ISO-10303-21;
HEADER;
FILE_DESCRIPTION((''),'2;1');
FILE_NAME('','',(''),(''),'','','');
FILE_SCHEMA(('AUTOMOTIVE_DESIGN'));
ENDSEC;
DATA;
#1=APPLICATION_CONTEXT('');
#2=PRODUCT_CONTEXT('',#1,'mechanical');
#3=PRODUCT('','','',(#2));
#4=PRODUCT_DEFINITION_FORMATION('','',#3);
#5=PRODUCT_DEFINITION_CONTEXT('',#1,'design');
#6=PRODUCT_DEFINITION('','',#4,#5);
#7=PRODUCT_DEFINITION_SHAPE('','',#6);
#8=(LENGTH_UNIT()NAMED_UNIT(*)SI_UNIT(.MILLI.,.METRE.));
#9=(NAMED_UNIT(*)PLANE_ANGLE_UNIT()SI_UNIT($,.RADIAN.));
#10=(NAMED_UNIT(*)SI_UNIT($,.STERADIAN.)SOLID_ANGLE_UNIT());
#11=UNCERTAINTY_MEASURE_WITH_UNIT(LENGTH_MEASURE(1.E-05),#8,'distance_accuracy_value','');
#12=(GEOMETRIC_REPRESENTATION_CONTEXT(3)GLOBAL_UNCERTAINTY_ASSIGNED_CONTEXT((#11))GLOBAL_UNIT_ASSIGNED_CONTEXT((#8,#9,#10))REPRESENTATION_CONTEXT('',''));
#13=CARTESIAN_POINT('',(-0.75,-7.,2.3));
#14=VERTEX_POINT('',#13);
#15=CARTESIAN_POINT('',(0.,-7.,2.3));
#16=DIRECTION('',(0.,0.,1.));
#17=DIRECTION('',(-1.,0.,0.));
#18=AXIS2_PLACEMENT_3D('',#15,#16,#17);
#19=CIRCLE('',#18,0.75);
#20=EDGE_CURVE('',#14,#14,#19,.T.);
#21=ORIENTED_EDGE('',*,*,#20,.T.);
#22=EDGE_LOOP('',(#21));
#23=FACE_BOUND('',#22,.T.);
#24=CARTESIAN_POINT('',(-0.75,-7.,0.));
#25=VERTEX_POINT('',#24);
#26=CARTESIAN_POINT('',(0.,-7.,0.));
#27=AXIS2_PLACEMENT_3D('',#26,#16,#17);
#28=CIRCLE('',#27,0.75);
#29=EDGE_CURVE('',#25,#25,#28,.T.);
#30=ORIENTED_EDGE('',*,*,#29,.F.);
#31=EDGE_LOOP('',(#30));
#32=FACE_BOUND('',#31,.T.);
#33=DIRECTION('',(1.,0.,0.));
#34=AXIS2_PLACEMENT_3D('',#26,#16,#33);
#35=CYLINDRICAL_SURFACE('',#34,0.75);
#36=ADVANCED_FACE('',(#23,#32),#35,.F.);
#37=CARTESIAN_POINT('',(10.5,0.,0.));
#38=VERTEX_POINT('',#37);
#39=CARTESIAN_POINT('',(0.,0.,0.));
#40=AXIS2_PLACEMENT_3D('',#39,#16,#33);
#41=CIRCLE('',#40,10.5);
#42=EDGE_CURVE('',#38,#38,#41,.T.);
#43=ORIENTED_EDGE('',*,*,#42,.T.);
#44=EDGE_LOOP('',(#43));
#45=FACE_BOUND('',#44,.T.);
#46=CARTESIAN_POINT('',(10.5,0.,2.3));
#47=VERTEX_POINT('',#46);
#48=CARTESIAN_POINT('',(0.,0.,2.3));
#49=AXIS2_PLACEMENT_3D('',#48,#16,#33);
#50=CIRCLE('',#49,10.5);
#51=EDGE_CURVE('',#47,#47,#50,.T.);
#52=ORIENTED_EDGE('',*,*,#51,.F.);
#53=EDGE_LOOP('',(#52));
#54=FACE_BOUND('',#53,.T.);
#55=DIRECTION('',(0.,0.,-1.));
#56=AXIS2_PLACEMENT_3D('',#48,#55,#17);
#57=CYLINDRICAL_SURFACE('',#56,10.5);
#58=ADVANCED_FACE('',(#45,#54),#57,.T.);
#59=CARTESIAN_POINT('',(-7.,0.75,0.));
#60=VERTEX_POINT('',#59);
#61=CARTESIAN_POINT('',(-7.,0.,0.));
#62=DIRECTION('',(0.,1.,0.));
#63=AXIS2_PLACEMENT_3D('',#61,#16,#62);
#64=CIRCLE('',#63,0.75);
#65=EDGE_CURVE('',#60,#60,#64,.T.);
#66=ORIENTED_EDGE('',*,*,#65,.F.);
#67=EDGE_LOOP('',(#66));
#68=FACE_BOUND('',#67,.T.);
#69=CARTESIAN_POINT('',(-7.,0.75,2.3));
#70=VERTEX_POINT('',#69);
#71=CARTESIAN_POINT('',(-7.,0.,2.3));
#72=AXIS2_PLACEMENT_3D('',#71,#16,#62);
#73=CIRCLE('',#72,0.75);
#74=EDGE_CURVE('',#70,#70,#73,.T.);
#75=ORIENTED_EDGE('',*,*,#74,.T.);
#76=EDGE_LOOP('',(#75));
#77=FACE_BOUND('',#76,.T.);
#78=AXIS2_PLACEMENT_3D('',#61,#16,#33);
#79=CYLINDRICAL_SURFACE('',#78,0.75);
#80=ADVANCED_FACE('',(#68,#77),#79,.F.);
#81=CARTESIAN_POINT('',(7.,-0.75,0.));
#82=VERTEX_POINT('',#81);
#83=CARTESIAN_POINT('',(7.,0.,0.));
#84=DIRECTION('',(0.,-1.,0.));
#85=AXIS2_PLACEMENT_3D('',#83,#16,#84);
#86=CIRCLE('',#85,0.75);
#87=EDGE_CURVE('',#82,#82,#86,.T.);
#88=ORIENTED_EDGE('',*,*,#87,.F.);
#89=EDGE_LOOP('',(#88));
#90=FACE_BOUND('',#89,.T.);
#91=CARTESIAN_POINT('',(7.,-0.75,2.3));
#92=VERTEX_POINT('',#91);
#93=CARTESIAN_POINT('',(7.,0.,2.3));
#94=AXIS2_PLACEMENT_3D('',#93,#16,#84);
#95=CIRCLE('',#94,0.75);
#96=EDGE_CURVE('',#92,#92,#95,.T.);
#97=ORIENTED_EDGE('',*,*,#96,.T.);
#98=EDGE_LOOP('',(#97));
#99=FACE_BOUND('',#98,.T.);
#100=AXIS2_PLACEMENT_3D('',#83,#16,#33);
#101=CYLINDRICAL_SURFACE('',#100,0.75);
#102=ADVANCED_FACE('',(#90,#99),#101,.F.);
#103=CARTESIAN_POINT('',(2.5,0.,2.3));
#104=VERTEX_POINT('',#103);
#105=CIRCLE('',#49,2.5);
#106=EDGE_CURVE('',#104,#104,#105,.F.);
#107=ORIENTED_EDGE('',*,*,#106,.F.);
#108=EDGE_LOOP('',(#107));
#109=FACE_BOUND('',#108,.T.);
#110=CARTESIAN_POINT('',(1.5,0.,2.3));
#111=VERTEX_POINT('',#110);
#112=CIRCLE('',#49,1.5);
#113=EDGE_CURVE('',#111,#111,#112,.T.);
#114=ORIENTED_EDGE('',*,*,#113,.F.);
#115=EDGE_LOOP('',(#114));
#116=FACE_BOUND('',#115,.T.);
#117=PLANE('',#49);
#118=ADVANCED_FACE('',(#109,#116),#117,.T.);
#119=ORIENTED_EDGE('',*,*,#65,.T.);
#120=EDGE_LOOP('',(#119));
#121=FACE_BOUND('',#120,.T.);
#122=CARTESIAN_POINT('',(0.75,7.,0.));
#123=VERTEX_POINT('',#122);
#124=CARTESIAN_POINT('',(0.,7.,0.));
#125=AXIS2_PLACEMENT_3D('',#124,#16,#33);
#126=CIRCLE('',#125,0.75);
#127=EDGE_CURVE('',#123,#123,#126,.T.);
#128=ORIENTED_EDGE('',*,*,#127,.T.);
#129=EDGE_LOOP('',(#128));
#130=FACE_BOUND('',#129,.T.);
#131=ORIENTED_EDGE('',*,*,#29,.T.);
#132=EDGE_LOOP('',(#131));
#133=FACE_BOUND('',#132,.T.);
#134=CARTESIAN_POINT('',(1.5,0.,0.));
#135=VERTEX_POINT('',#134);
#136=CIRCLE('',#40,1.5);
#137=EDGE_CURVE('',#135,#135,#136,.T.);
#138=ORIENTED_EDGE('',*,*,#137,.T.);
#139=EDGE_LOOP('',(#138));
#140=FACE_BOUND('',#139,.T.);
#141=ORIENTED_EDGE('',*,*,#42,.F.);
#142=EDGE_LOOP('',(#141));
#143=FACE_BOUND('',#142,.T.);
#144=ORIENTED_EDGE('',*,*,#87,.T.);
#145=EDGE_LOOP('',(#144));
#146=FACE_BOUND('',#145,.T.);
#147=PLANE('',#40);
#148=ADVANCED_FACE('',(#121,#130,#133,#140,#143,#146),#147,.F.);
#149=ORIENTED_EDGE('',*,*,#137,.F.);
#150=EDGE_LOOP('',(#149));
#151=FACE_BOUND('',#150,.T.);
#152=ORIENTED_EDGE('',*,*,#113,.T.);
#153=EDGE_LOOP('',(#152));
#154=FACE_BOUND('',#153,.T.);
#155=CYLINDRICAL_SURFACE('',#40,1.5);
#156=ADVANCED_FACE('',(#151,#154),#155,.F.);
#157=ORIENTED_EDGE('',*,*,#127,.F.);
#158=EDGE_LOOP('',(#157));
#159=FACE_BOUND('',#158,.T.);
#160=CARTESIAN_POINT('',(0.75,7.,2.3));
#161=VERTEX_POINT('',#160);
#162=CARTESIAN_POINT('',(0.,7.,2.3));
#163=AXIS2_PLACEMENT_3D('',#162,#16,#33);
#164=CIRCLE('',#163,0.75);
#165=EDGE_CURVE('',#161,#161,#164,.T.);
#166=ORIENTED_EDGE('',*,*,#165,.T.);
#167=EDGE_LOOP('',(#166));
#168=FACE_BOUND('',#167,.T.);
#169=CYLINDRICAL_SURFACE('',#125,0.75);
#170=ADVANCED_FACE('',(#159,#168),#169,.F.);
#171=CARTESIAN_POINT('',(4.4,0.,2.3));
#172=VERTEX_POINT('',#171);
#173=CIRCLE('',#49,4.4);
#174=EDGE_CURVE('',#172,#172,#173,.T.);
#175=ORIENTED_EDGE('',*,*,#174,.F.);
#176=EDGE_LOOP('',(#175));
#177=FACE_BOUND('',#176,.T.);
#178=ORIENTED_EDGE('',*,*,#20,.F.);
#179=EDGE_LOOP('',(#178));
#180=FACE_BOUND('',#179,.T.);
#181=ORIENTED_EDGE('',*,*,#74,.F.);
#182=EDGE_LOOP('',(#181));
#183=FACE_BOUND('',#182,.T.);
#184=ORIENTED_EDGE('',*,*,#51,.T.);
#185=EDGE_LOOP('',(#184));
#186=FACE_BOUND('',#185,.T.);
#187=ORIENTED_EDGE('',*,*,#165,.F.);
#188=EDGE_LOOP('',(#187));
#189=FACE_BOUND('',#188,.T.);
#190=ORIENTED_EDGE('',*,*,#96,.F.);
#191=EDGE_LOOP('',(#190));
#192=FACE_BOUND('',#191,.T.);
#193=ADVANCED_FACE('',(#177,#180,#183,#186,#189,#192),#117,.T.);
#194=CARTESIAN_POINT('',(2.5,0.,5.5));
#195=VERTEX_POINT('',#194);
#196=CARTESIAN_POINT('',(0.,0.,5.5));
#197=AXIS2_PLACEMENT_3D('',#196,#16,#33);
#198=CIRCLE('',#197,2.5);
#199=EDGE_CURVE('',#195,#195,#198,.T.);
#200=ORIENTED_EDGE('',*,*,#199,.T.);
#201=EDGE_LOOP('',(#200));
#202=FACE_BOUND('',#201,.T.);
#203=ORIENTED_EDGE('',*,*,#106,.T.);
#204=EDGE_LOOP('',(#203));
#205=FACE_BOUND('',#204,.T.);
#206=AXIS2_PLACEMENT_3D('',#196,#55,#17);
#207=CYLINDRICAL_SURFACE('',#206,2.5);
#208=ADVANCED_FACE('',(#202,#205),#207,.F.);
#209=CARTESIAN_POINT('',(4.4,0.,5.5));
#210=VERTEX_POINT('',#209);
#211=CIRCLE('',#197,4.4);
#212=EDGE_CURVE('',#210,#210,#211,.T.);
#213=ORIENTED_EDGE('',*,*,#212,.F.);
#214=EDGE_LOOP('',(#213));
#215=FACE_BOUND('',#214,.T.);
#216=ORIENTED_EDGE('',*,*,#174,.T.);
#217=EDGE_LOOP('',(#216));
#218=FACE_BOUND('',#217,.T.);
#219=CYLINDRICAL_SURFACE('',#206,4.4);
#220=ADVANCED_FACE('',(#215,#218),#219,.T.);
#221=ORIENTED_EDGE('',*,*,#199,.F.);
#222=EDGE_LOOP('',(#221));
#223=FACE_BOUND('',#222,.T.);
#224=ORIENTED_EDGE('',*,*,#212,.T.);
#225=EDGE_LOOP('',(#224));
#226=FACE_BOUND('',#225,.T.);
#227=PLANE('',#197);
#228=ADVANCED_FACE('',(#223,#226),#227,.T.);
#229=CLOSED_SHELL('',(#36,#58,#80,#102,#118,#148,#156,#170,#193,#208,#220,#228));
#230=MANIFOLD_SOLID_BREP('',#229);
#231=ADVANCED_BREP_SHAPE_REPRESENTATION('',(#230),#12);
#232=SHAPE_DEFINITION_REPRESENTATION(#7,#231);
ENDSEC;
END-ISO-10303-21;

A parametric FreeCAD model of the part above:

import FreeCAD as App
import Part
import Sketcher

V = App.Vector

doc = App.newDocument("Part")
body = doc.addObject("PartDesign::Body", "Body")

# Sketch on XY plane
sketch1 = body.newObject("Sketcher::SketchObject", "Sketch")
sketch1.AttachmentSupport = (doc.getObject("XY_Plane"), [""])
sketch1.MapMode = "FlatFace"
sketch1.addGeometry(Part.Circle(V(0, 0, 0), V(0, 0, 1), 10.5), False)
sketch1.addConstraint([
    Sketcher.Constraint("Coincident", 0, 3, -1, 1),
    Sketcher.Constraint("Diameter", 0, 21.0),
])
pad1 = body.newObject("PartDesign::Pad", "Pad")
pad1.Profile = sketch1
pad1.Length = 2.3

# Sketch on XY plane
sketch2 = body.newObject("Sketcher::SketchObject", "Sketch001")
sketch2.AttachmentSupport = (doc.getObject("XY_Plane"), [""])
sketch2.MapMode = "FlatFace"
sketch2.AttachmentOffset = App.Placement(V(0, 0, 2.3), App.Rotation())
sketch2.addGeometry(Part.Circle(V(0, 7, 0), V(0, 0, 1), 0.75), False)
sketch2.addConstraint([
    Sketcher.Constraint("PointOnObject", 0, 3, -2),
    Sketcher.Constraint("Diameter", 0, 1.5),
    Sketcher.Constraint("DistanceY", -1, 1, 0, 3, 7.0),
])
pocket1 = body.newObject("PartDesign::Pocket", "Pocket")
pocket1.Profile = sketch2
pocket1.Type = "ThroughAll"

# Sketch on XY plane
sketch3 = body.newObject("Sketcher::SketchObject", "Sketch002")
sketch3.AttachmentSupport = (doc.getObject("XY_Plane"), [""])
sketch3.MapMode = "FlatFace"
sketch3.AttachmentOffset = App.Placement(V(0, 0, 2.3), App.Rotation())
sketch3.addGeometry(Part.Circle(V(0, 0, 0), V(0, 0, 1), 1.5), False)
sketch3.addConstraint([
    Sketcher.Constraint("Coincident", 0, 3, -1, 1),
    Sketcher.Constraint("Diameter", 0, 3.0),
])
pocket2 = body.newObject("PartDesign::Pocket", "Pocket001")
pocket2.Profile = sketch3
pocket2.Length = 2.3
doc.recompute()

polarpattern = body.newObject("PartDesign::PolarPattern", "PolarPattern")
polarpattern.Originals = [pocket1]
polarpattern.Axis = (doc.getObject("Z_Axis"), [""])
polarpattern.Angle = 360
polarpattern.Occurrences = 4
body.Tip = polarpattern

# Sketch on XY plane
sketch4 = body.newObject("Sketcher::SketchObject", "Sketch003")
sketch4.AttachmentSupport = (doc.getObject("XY_Plane"), [""])
sketch4.MapMode = "FlatFace"
sketch4.AttachmentOffset = App.Placement(V(0, 0, 2.3), App.Rotation())
sketch4.addGeometry([
    Part.Circle(V(0, 0, 0), V(0, 0, 1), 4.4),
    Part.Circle(V(0, 0, 0), V(0, 0, 1), 2.5),
], False)
sketch4.addConstraint([
    Sketcher.Constraint("Coincident", 0, 3, -1, 1),
    Sketcher.Constraint("Coincident", 1, 3, -1, 1),
    Sketcher.Constraint("Diameter", 1, 5.0),
    Sketcher.Constraint("Diameter", 0, 8.8),
])
pad2 = body.newObject("PartDesign::Pad", "Pad001")
pad2.Profile = sketch4
pad2.Length = 3.2

doc.recompute()
